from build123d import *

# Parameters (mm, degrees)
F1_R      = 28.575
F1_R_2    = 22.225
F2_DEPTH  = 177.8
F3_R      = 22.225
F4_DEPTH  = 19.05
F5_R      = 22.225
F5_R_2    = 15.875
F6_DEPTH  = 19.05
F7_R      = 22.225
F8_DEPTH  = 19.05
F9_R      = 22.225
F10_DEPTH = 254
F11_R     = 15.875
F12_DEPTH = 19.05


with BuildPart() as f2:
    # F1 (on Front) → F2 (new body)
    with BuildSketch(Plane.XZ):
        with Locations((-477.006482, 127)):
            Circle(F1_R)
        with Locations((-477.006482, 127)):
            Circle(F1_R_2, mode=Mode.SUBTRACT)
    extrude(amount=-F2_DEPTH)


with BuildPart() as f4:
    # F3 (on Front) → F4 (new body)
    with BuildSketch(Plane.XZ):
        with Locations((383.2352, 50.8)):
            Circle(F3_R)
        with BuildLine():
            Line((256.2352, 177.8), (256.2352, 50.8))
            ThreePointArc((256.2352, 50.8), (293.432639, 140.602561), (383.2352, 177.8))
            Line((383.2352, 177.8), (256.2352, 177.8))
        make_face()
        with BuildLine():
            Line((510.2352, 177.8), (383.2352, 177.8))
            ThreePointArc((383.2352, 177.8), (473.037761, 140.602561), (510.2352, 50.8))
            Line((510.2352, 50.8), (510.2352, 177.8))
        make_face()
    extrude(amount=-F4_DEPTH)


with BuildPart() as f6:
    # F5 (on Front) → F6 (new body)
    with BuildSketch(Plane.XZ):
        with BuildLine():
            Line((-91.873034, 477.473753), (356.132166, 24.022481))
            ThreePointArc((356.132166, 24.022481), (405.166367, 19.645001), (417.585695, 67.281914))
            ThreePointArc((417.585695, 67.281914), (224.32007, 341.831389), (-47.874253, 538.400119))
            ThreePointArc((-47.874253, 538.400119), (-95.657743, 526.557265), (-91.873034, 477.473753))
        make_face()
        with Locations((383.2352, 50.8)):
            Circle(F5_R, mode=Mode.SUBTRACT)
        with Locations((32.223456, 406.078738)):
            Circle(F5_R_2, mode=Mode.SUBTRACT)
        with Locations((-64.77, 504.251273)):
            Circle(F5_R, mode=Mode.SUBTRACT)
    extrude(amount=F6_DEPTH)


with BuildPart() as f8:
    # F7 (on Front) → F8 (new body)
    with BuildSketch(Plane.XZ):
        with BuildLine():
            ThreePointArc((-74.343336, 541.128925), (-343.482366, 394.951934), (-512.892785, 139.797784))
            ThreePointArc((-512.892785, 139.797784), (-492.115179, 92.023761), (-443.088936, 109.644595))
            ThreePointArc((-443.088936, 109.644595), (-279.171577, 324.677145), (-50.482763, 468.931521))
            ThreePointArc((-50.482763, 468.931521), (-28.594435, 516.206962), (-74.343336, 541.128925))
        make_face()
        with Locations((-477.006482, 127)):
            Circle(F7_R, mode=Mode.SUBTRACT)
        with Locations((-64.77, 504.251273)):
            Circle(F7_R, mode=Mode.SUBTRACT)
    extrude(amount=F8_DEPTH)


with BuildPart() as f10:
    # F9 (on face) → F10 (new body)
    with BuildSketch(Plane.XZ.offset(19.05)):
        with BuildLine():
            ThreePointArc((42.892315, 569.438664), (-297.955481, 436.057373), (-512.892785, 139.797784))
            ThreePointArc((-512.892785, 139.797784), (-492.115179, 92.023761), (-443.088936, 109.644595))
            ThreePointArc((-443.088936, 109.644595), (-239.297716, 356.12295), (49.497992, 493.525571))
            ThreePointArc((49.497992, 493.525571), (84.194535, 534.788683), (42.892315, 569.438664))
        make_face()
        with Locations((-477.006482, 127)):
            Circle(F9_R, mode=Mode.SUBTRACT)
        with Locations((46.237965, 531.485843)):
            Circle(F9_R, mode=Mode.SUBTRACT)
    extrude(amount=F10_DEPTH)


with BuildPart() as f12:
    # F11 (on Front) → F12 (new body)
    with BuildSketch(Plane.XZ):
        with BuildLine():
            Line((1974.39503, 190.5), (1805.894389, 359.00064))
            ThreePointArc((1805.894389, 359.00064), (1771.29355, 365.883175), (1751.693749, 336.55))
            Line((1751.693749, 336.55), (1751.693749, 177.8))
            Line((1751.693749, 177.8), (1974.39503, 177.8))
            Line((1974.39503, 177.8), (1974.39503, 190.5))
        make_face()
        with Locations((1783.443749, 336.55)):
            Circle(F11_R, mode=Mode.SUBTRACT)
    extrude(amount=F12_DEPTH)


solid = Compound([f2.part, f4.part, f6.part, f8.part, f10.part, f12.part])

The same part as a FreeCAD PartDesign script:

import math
import FreeCAD as App
import Part
import Sketcher
Q = App.Units.Quantity

doc = App.newDocument("Part")
body = doc.addObject("PartDesign::Body", "Body")

# Sketch on XZ plane
sketch1 = body.newObject("Sketcher::SketchObject", "Sketch")
sketch1.AttachmentSupport = (doc.getObject("XZ_Plane"), [""])
sketch1.MapMode = "FlatFace"
sketch1.addGeometry(Part.Circle(App.Vector(-477, 127, 0), App.Vector(0, 0, 1), 29), False)
sketch1.addGeometry(Part.Circle(App.Vector(-477, 127, 0), App.Vector(0, 0, 1), 22), False)
sketch1.addConstraint(Sketcher.Constraint("Coincident", 1, 3, 0, 3))
sketch1.addConstraint(Sketcher.Constraint("Diameter", 0, Q("2.25 in")))
sketch1.addConstraint(Sketcher.Constraint("Diameter", 1, Q("1.75 in")))
sketch1.addConstraint(Sketcher.Constraint("DistanceY", -1, 1, 0, 3, Q("5 in")))
sketch1.addConstraint(Sketcher.Constraint("DistanceX", 0, 3, -1, 1, Q("477.006482 mm")))
pad1 = body.newObject("PartDesign::Pad", "Pad")
pad1.Profile = sketch1
pad1.Length = Q("7 in")
pad1.Reversed = True
body2 = doc.addObject("PartDesign::Body", "Body001")
body2.AllowCompound = True

# Sketch on XZ plane
sketch2 = body2.newObject("Sketcher::SketchObject", "Sketch001")
sketch2.AttachmentSupport = (doc.getObject("XZ_Plane001"), [""])
sketch2.MapMode = "FlatFace"
sketch2.addGeometry(Part.Circle(App.Vector(383, 51, 0), App.Vector(0, 0, 1), 22), False)
sketch2.addGeometry(Part.LineSegment(App.Vector(256, 178, 0), App.Vector(256, 51, 0)), False)
sketch2.addGeometry(Part.ArcOfCircle(Part.Circle(App.Vector(383, 51, 0), App.Vector(0, 0, 1), 127), math.radians(90), math.radians(180)), False)
sketch2.addGeometry(Part.LineSegment(App.Vector(383, 178, 0), App.Vector(256, 178, 0)), False)
sketch2.addGeometry(Part.LineSegment(App.Vector(510, 178, 0), App.Vector(383, 178, 0)), False)
sketch2.addGeometry(Part.ArcOfCircle(Part.Circle(App.Vector(383, 51, 0), App.Vector(0, 0, 1), 127), math.radians(0), math.radians(90)), False)
sketch2.addGeometry(Part.LineSegment(App.Vector(510, 51, 0), App.Vector(510, 178, 0)), False)
sketch2.addConstraint(Sketcher.Constraint("Tangent", 1, 2, 2, 2))
sketch2.addConstraint(Sketcher.Constraint("Tangent", 2, 1, 3, 1))
sketch2.addConstraint(Sketcher.Constraint("Coincident", 3, 2, 1, 1))
sketch2.addConstraint(Sketcher.Constraint("Tangent", 4, 2, 5, 2))
sketch2.addConstraint(Sketcher.Constraint("Tangent", 5, 1, 6, 1))
sketch2.addConstraint(Sketcher.Constraint("Coincident", 6, 2, 4, 1))
sketch2.addConstraint(Sketcher.Constraint("Vertical", 1))
sketch2.addConstraint(Sketcher.Constraint("Horizontal", 3))
sketch2.addConstraint(Sketcher.Constraint("Horizontal", 4))
sketch2.addConstraint(Sketcher.Constraint("Vertical", 6))
sketch2.addConstraint(Sketcher.Constraint("Coincident", 2, 3, 0, 3))
sketch2.addConstraint(Sketcher.Constraint("Coincident", 5, 3, 0, 3))
sketch2.addConstraint(Sketcher.Constraint("Equal", 2, 5))
sketch2.addConstraint(Sketcher.Constraint("Radius", 2, Q("5 in")))
sketch2.addConstraint(Sketcher.Constraint("Diameter", 0, Q("1.75 in")))
sketch2.addConstraint(Sketcher.Constraint("DistanceY", -1, 1, 0, 3, Q("2 in")))
sketch2.addConstraint(Sketcher.Constraint("DistanceX", -1, 1, 0, 3, Q("15.088 in")))
pad2 = body2.newObject("PartDesign::Pad", "Pad001")
pad2.Profile = sketch2
pad2.Length = Q("0.75 in")
pad2.Reversed = True
body3 = doc.addObject("PartDesign::Body", "Body002")

# Sketch on XZ plane
sketch3 = body3.newObject("Sketcher::SketchObject", "Sketch002")
sketch3.AttachmentSupport = (doc.getObject("XZ_Plane002"), [""])
sketch3.MapMode = "FlatFace"
sketch3.addGeometry(Part.LineSegment(App.Vector(-92, 477, 0), App.Vector(356, 24, 0)), False)
sketch3.addGeometry(Part.ArcOfCircle(Part.Circle(App.Vector(383, 51, 0), App.Vector(0, 0, 1), 38), math.radians(-135), math.radians(26)), False)
sketch3.addGeometry(Part.ArcOfCircle(Part.Circle(App.Vector(-498, -372, 0), App.Vector(0, 0, 1), 1016), math.radians(26), math.radians(64)), False)
sketch3.addGeometry(Part.ArcOfCircle(Part.Circle(App.Vector(-65, 504, 0), App.Vector(0, 0, 1), 38), math.radians(64), math.radians(225)), False)
sketch3.addGeometry(Part.Circle(App.Vector(383, 51, 0), App.Vector(0, 0, 1), 22), False)
sketch3.addGeometry(Part.Circle(App.Vector(32, 406, 0), App.Vector(0, 0, 1), 16), False)
sketch3.addGeometry(Part.Circle(App.Vector(-65, 504, 0), App.Vector(0, 0, 1), 22), False)
sketch3.addConstraint(Sketcher.Constraint("Tangent", 0, 2, 1, 1))
sketch3.addConstraint(Sketcher.Constraint("Tangent", 1, 2, 2, 1))
sketch3.addConstraint(Sketcher.Constraint("Tangent", 2, 2, 3, 1))
sketch3.addConstraint(Sketcher.Constraint("Tangent", 3, 2, 0, 1))
sketch3.addConstraint(Sketcher.Constraint("Coincident", 4, 3, 1, 3))
sketch3.addConstraint(Sketcher.Constraint("Coincident", 6, 3, 3, 3))
sketch3.addConstraint(Sketcher.Constraint("Equal", 1, 3))
sketch3.addConstraint(Sketcher.Constraint("Equal", 4, 6))
sketch3.addConstraint(Sketcher.Constraint("Radius", 2, Q("39.9999998 in")))
sketch3.addConstraint(Sketcher.Constraint("Radius", 1, Q("1.5 in")))
sketch3.addConstraint(Sketcher.Constraint("Diameter", 4, Q("1.75 in")))
sketch3.addConstraint(Sketcher.Constraint("Diameter", 5, Q("1.25 in")))
sketch3.addConstraint(Sketcher.Constraint("DistanceY", -1, 1, 1, 3, Q("2 in")))
sketch3.addConstraint(Sketcher.Constraint("DistanceX", 3, 3, -1, 1, Q("2.55 in")))
sketch3.addConstraint(Sketcher.Constraint("DistanceX", -1, 1, 1, 3, Q("15.088 in")))
sketch3.addConstraint(Sketcher.Constraint("DistanceY", 2, 3, -1, 1, Q("372.235791 mm")))
sketch3.addConstraint(Sketcher.Constraint("DistanceY", -1, 1, 5, 3, Q("406.078738 mm")))
sketch3.addConstraint(Sketcher.Constraint("DistanceX", 2, 3, 5, 3, Q("530.650959 mm")))
pad3 = body3.newObject("PartDesign::Pad", "Pad002")
pad3.Profile = sketch3
pad3.Length = Q("0.75 in")
body4 = doc.addObject("PartDesign::Body", "Body003")

# Sketch on XZ plane
sketch4 = body4.newObject("Sketcher::SketchObject", "Sketch003")
sketch4.AttachmentSupport = (doc.getObject("XZ_Plane003"), [""])
sketch4.MapMode = "FlatFace"
sketch4.addGeometry(Part.ArcOfCircle(Part.Circle(App.Vector(85, -73, 0), App.Vector(0, 0, 1), 635), math.radians(105), math.radians(160)), False)
sketch4.addGeometry(Part.ArcOfCircle(Part.Circle(App.Vector(-477, 127, 0), App.Vector(0, 0, 1), 38), math.radians(160), math.radians(333)), False)
sketch4.addGeometry(Part.ArcOfCircle(Part.Circle(App.Vector(235, -237, 0), App.Vector(0, 0, 1), 762), math.radians(112), math.radians(153)), False)
sketch4.addGeometry(Part.ArcOfCircle(Part.Circle(App.Vector(-65, 504, 0), App.Vector(0, 0, 1), 38), math.radians(-68), math.radians(105)), False)
sketch4.addGeometry(Part.Circle(App.Vector(-477, 127, 0), App.Vector(0, 0, 1), 22), False)
sketch4.addGeometry(Part.Circle(App.Vector(-65, 504, 0), App.Vector(0, 0, 1), 22), False)
sketch4.addConstraint(Sketcher.Constraint("Tangent", 0, 2, 1, 1))
sketch4.addConstraint(Sketcher.Constraint("Tangent", 1, 2, 2, 2))
sketch4.addConstraint(Sketcher.Constraint("Tangent", 2, 1, 3, 1))
sketch4.addConstraint(Sketcher.Constraint("Tangent", 3, 2, 0, 1))
sketch4.addConstraint(Sketcher.Constraint("Coincident", 4, 3, 1, 3))
sketch4.addConstraint(Sketcher.Constraint("Coincident", 5, 3, 3, 3))
sketch4.addConstraint(Sketcher.Constraint("Equal", 1, 3))
sketch4.addConstraint(Sketcher.Constraint("Equal", 4, 5))
sketch4.addConstraint(Sketcher.Constraint("Radius", 0, Q("25.0000002 in")))
sketch4.addConstraint(Sketcher.Constraint("Radius", 1, Q("1.5 in")))
sketch4.addConstraint(Sketcher.Constraint("Diameter", 4, Q("1.75 in")))
sketch4.addConstraint(Sketcher.Constraint("DistanceY", -1, 1, 1, 3, Q("5 in")))
sketch4.addConstraint(Sketcher.Constraint("DistanceX", 3, 3, -1, 1, Q("2.55 in")))
sketch4.addConstraint(Sketcher.Constraint("Radius", 2, Q("761.999993 mm")))
sketch4.addConstraint(Sketcher.Constraint("DistanceX", 1, 2, 3, 2, Q("368.7456 mm")))
sketch4.addConstraint(Sketcher.Constraint("DistanceX", 4, 3, -1, 1, Q("477.006482 mm")))
pad4 = body4.newObject("PartDesign::Pad", "Pad003")
pad4.Profile = sketch4
pad4.Length = Q("0.75 in")
body5 = doc.addObject("PartDesign::Body", "Body004")

# Sketch on XZ plane
sketch5 = body5.newObject("Sketcher::SketchObject", "Sketch004")
sketch5.AttachmentSupport = (doc.getObject("XZ_Plane004"), [""])
sketch5.MapMode = "FlatFace"
sketch5.AttachmentOffset = App.Placement(App.Vector(0, 0, 0.75 * 25.4), App.Rotation())
sketch5.addGeometry(Part.ArcOfCircle(Part.Circle(App.Vector(100, -79, 0), App.Vector(0, 0, 1), 651), math.radians(95), math.radians(160)), False)
sketch5.addGeometry(Part.ArcOfCircle(Part.Circle(App.Vector(-477, 127, 0), App.Vector(0, 0, 1), 38), math.radians(160), math.radians(333)), False)
sketch5.addGeometry(Part.ArcOfCircle(Part.Circle(App.Vector(215, -227, 0), App.Vector(0, 0, 1), 740), math.radians(103), math.radians(153)), False)
sketch5.addGeometry(Part.ArcOfCircle(Part.Circle(App.Vector(46, 531, 0), App.Vector(0, 0, 1), 38), math.radians(-85), math.radians(95)), False)
sketch5.addGeometry(Part.Circle(App.Vector(-477, 127, 0), App.Vector(0, 0, 1), 22), False)
sketch5.addGeometry(Part.Circle(App.Vector(46, 531, 0), App.Vector(0, 0, 1), 22), False)
sketch5.addConstraint(Sketcher.Constraint("Tangent", 0, 2, 1, 1))
sketch5.addConstraint(Sketcher.Constraint("Tangent", 1, 2, 2, 2))
sketch5.addConstraint(Sketcher.Constraint("Coincident", 2, 1, 3, 1))
sketch5.addConstraint(Sketcher.Constraint("Tangent", 3, 2, 0, 1))
sketch5.addConstraint(Sketcher.Constraint("Coincident", 4, 3, 1, 3))
sketch5.addConstraint(Sketcher.Constraint("Coincident", 5, 3, 3, 3))
sketch5.addConstraint(Sketcher.Constraint("Equal", 1, 3))
sketch5.addConstraint(Sketcher.Constraint("Equal", 4, 5))
sketch5.addConstraint(Sketcher.Constraint("Radius", 1, Q("1.5 in")))
sketch5.addConstraint(Sketcher.Constraint("Diameter", 4, Q("1.75 in")))
sketch5.addConstraint(Sketcher.Constraint("DistanceY", -1, 1, 1, 3, Q("5 in")))
sketch5.addConstraint(Sketcher.Constraint("Radius", 0, Q("650.737161 mm")))
sketch5.addConstraint(Sketcher.Constraint("Radius", 2, Q("739.639177 mm")))
sketch5.addConstraint(Sketcher.Constraint("DistanceX", 1, 2, 3, 3, Q("489.3269 mm")))
sketch5.addConstraint(Sketcher.Constraint("DistanceX", -1, 1, 2, 3, Q("215.35583 mm")))
sketch5.addConstraint(Sketcher.Constraint("DistanceX", 4, 3, -1, 1, Q("477.006482 mm")))
sketch5.addConstraint(Sketcher.Constraint("DistanceY", -1, 1, 2, 1, Q("493.525571 mm")))
pad5 = body5.newObject("PartDesign::Pad", "Pad004")
pad5.Profile = sketch5
pad5.Length = Q("10 in")
body6 = doc.addObject("PartDesign::Body", "Body005")

# Sketch on XZ plane
sketch6 = body6.newObject("Sketcher::SketchObject", "Sketch005")
sketch6.AttachmentSupport = (doc.getObject("XZ_Plane005"), [""])
sketch6.MapMode = "FlatFace"
sketch6.addGeometry(Part.LineSegment(App.Vector(1974, 190, 0), App.Vector(1806, 359, 0)), False)
sketch6.addGeometry(Part.ArcOfCircle(Part.Circle(App.Vector(1783, 337, 0), App.Vector(0, 0, 1), 32), math.radians(45), math.radians(180)), False)
sketch6.addGeometry(Part.LineSegment(App.Vector(1752, 337, 0), App.Vector(1752, 178, 0)), False)
sketch6.addGeometry(Part.LineSegment(App.Vector(1752, 178, 0), App.Vector(1974, 178, 0)), False)
sketch6.addGeometry(Part.LineSegment(App.Vector(1974, 178, 0), App.Vector(1974, 190, 0)), False)
sketch6.addGeometry(Part.Circle(App.Vector(1783, 337, 0), App.Vector(0, 0, 1), 16), False)
sketch6.addConstraint(Sketcher.Constraint("Tangent", 0, 2, 1, 1))
sketch6.addConstraint(Sketcher.Constraint("Tangent", 1, 2, 2, 1))
sketch6.addConstraint(Sketcher.Constraint("Coincident", 2, 2, 3, 1))
sketch6.addConstraint(Sketcher.Constraint("Coincident", 3, 2, 4, 1))
sketch6.addConstraint(Sketcher.Constraint("Coincident", 4, 2, 0, 1))
sketch6.addConstraint(Sketcher.Constraint("Vertical", 2))
sketch6.addConstraint(Sketcher.Constraint("Horizontal", 3))
sketch6.addConstraint(Sketcher.Constraint("Vertical", 4))
sketch6.addConstraint(Sketcher.Constraint("Coincident", 5, 3, 1, 3))
sketch6.addConstraint(Sketcher.Constraint("Diameter", 5, Q("1.25 in")))
sketch6.addConstraint(Sketcher.Constraint("Radius", 1, Q("1.25 in")))
sketch6.addConstraint(Sketcher.Constraint("DistanceY", 4, 1, 4, 2, Q("0.5 in")))
sketch6.addConstraint(Sketcher.Constraint("DistanceY", -1, 1, 2, 2, Q("7 in")))
sketch6.addConstraint(Sketcher.Constraint("Angle", 0, Q("135 deg")))
sketch6.addConstraint(Sketcher.Constraint("DistanceY", 2, 2, 2, 1, Q("6.25 in")))
sketch6.addConstraint(Sketcher.Constraint("DistanceX", -1, 1, 1, 3, Q("1783.443749 mm")))
pad6 = body6.newObject("PartDesign::Pad", "Pad005")
pad6.Profile = sketch6
pad6.Length = Q("0.75 in")

doc.recompute()
